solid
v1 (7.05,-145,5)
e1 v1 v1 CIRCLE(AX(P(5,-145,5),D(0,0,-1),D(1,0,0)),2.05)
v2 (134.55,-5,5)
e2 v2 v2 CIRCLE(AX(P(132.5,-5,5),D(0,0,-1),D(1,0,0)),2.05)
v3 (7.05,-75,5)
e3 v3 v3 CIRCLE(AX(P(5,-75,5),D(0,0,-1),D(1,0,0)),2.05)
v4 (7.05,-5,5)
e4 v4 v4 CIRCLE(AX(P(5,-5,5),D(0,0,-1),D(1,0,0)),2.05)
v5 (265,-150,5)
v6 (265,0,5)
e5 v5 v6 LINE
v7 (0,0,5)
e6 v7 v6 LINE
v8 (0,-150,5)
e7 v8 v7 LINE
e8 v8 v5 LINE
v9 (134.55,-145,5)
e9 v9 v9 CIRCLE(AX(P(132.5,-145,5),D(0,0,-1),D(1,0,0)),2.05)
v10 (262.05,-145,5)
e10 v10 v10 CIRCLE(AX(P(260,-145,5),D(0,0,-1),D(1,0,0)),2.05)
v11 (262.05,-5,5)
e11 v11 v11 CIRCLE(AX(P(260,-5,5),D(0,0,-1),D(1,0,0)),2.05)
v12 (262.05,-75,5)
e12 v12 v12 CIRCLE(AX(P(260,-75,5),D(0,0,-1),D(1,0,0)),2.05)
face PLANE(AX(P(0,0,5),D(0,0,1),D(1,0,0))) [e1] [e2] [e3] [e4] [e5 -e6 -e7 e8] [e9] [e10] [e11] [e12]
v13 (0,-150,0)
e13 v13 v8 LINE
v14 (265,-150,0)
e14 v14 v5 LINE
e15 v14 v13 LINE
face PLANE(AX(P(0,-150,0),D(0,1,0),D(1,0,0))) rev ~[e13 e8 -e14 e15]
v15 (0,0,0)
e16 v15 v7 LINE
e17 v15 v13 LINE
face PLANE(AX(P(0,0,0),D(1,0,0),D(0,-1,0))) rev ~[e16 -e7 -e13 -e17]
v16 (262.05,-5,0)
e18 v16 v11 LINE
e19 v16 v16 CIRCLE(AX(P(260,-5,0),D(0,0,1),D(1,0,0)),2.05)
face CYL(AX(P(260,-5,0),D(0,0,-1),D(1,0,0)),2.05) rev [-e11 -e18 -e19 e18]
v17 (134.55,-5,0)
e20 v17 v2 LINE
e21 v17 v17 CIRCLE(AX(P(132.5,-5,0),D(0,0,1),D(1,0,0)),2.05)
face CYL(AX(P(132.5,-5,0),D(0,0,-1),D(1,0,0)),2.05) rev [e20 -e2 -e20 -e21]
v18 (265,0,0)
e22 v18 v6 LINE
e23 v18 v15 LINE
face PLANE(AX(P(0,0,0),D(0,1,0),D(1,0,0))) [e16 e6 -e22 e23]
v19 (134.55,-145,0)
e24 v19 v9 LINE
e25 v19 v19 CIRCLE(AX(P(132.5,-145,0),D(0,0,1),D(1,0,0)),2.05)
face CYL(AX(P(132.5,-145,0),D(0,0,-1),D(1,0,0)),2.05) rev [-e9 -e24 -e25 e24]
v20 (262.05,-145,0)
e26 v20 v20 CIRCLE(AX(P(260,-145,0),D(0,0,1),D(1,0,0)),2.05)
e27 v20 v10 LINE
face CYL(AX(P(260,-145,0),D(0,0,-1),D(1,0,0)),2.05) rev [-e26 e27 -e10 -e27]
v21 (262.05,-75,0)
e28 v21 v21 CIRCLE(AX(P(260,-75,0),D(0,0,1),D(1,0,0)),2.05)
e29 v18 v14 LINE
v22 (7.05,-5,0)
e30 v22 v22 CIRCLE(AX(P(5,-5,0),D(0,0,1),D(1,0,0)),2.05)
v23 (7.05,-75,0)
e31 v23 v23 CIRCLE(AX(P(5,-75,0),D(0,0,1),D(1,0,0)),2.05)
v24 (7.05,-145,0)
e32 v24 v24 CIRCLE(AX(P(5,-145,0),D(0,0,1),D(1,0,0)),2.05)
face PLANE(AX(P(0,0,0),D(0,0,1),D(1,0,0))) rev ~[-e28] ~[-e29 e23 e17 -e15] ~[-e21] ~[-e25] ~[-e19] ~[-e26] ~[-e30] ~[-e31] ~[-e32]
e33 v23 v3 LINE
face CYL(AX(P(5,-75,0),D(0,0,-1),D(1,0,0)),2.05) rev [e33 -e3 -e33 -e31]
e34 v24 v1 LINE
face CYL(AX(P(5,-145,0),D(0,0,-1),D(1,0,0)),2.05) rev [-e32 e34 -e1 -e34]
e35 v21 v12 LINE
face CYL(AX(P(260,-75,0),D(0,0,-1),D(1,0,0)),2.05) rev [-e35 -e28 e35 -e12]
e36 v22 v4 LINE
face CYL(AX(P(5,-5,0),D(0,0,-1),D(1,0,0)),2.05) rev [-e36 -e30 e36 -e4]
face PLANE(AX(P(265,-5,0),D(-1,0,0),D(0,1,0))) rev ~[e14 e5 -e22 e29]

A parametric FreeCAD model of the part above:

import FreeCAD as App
import Part
import Sketcher
from FreeCAD import Vector


def add_polygon(sketch, points):
    """Adds a closed chain of lines whose ends are joined by coincident constraints."""
    first, n = sketch.GeometryCount, len(points)
    for a, b in zip(points, points[1:] + points[:1]):
        sketch.addGeometry(Part.LineSegment(App.Vector(*a, 0), App.Vector(*b, 0)), False)
    for i in range(n):
        sketch.addConstraint(Sketcher.Constraint("Coincident", first + i, 2, first + (i + 1) % n, 1))

doc = App.newDocument("Part")
body = doc.addObject("PartDesign::Body", "Body")

sketch1 = body.newObject("Sketcher::SketchObject", "Sketch")
sketch1.AttachmentSupport = (doc.getObject("XY_Plane"), [""])
sketch1.MapMode = "FlatFace"
add_polygon(sketch1, [(0, 0), (0, -150), (265, -150), (265, 0)])
sketch1.addGeometry(Part.Circle(Vector(5, -5, 0), Vector(0, 0, 1), 2), False)
sketch1.addGeometry(Part.Circle(Vector(132.5, -5, 0), Vector(0, 0, 1), 2), False)
sketch1.addGeometry(Part.Circle(Vector(5, -75, 0), Vector(0, 0, 1), 2), False)
sketch1.addGeometry(Part.Circle(Vector(260, -5, 0), Vector(0, 0, 1), 2), False)
sketch1.addGeometry(Part.Circle(Vector(260, -75, 0), Vector(0, 0, 1), 2), False)
sketch1.addGeometry(Part.Circle(Vector(260, -145, 0), Vector(0, 0, 1), 2), False)
sketch1.addGeometry(Part.Circle(Vector(132.5, -145, 0), Vector(0, 0, 1), 2), False)
sketch1.addGeometry(Part.Circle(Vector(5, -145, 0), Vector(0, 0, 1), 2), False)
sketch1.addConstraint(Sketcher.Constraint("Vertical", 0))
sketch1.addConstraint(Sketcher.Constraint("Horizontal", 1))
sketch1.addConstraint(Sketcher.Constraint("Vertical", 2))
sketch1.addConstraint(Sketcher.Constraint("Horizontal", 3))
sketch1.addConstraint(Sketcher.Constraint("Coincident", 3, 2, -1, 1))
sketch1.addConstraint(Sketcher.Constraint("Equal", 4, 5))
sketch1.addConstraint(Sketcher.Constraint("Equal", 5, 6))
sketch1.addConstraint(Sketcher.Constraint("Equal", 6, 7))
sketch1.addConstraint(Sketcher.Constraint("Equal", 7, 8))
sketch1.addConstraint(Sketcher.Constraint("Equal", 8, 9))
sketch1.addConstraint(Sketcher.Constraint("Equal", 9, 10))
sketch1.addConstraint(Sketcher.Constraint("Equal", 10, 11))
sketch1.addConstraint(Sketcher.Constraint("Horizontal", 4, 3, 5, 3))
sketch1.addConstraint(Sketcher.Constraint("Horizontal", 5, 3, 7, 3))
sketch1.addConstraint(Sketcher.Constraint("Horizontal", 6, 3, 8, 3))
sketch1.addConstraint(Sketcher.Constraint("Horizontal", 9, 3, 10, 3))
sketch1.addConstraint(Sketcher.Constraint("Horizontal", 10, 3, 11, 3))
sketch1.addConstraint(Sketcher.Constraint("Vertical", 4, 3, 6, 3))
sketch1.addConstraint(Sketcher.Constraint("Vertical", 7, 3, 8, 3))
sketch1.addConstraint(Sketcher.Constraint("Vertical", 8, 3, 9, 3))
sketch1.addConstraint(Sketcher.Constraint("Vertical", 5, 3, 10, 3))
sketch1.addConstraint(Sketcher.Constraint("Vertical", 6, 3, 11, 3))
sketch1.addConstraint(Sketcher.Constraint("Diameter", 4, 4.1))
sketch1.addConstraint(Sketcher.Constraint("DistanceX", 1, 1, 1, 2, 265.0))
sketch1.addConstraint(Sketcher.Constraint("DistanceY", 0, 2, 0, 1, 150.0))
sketch1.addConstraint(Sketcher.Constraint("DistanceX", -1, 1, 4, 3, 5.0))
sketch1.addConstraint(Sketcher.Constraint("DistanceY", 4, 3, -1, 1, 5.0))
sketch1.addConstraint(Sketcher.Constraint("DistanceY", 6, 3, 4, 3, 70.0))
sketch1.addConstraint(Sketcher.Constraint("DistanceY", 9, 3, 8, 3, 70.0))
sketch1.addConstraint(Sketcher.Constraint("DistanceX", 9, 3, 1, 2, 5.0))
sketch1.addConstraint(Sketcher.Constraint("DistanceX", 4, 3, 5, 3, 127.5))
pad1 = body.newObject("PartDesign::Pad", "Pad")
pad1.Profile = sketch1
pad1.Length = 5

doc.recompute()
